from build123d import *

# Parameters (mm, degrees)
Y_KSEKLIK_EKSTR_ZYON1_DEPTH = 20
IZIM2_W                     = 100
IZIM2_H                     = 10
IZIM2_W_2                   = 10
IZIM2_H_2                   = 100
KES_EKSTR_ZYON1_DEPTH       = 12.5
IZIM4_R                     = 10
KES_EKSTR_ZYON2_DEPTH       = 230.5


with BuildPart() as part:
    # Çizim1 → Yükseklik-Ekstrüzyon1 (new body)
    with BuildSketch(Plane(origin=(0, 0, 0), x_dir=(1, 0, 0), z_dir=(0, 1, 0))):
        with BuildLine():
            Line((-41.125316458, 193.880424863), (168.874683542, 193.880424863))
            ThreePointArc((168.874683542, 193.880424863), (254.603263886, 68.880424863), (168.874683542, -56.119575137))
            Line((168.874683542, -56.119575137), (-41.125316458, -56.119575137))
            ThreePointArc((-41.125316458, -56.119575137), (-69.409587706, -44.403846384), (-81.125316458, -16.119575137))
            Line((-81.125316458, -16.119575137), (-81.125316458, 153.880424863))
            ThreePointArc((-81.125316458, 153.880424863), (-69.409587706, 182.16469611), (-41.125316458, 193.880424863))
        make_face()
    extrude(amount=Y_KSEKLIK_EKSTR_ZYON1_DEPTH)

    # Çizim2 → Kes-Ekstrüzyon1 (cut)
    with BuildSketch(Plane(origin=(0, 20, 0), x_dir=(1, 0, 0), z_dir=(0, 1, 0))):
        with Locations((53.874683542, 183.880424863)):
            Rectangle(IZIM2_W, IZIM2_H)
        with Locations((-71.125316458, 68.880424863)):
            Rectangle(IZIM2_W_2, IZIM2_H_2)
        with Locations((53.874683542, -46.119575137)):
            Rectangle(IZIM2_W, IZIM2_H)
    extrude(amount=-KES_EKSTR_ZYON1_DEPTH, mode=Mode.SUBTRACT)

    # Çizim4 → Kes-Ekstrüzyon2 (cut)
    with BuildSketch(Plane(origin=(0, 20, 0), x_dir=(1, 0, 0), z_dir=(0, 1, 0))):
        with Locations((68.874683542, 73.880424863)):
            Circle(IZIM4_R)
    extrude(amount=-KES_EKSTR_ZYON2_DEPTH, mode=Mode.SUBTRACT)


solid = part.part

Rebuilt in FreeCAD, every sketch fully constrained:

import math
import FreeCAD as App
import Part
import Sketcher


def add_polygon(sketch, points):
    """Adds a closed chain of lines whose ends are joined by coincident constraints."""
    first, n = sketch.GeometryCount, len(points)
    for a, b in zip(points, points[1:] + points[:1]):
        sketch.addGeometry(Part.LineSegment(App.Vector(*a, 0), App.Vector(*b, 0)), False)
    for i in range(n):
        sketch.addConstraint(Sketcher.Constraint("Coincident", first + i, 2, first + (i + 1) % n, 1))

doc = App.newDocument("Part")
body = doc.addObject("PartDesign::Body", "Body")

sketch1 = body.newObject("Sketcher::SketchObject", "Sketch")
sketch1.AttachmentSupport = (doc.getObject("XZ_Plane"), [""])
sketch1.MapMode = "FlatFace"
sketch1.addGeometry([
    Part.LineSegment(App.Vector(168.874684, -193.880425, 0), App.Vector(-41.125316, -193.880425, 0)),
    Part.ArcOfCircle(Part.Circle(App.Vector(-41.125316, -153.880425, 0), App.Vector(0, 0, 1), 40), math.radians(180), math.radians(270)),
    Part.LineSegment(App.Vector(-81.125316, -153.880425, 0), App.Vector(-81.125316, 16.119575, 0)),
    Part.ArcOfCircle(Part.Circle(App.Vector(-41.125316, 16.119575, 0), App.Vector(0, 0, 1), 40), math.radians(90), math.radians(180)),
    Part.LineSegment(App.Vector(-41.125316, 56.119575, 0), App.Vector(168.874684, 56.119575, 0)),
    Part.ArcOfCircle(Part.Circle(App.Vector(120.608338, -68.880425, 0), App.Vector(0, 0, 1), 133.994926), math.radians(-68.886891), math.radians(68.886891)),
], False)
sketch1.addConstraint([
    Sketcher.Constraint("Tangent", 0, 2, 1, 2),
    Sketcher.Constraint("Tangent", 1, 1, 2, 1),
    Sketcher.Constraint("Tangent", 2, 2, 3, 2),
    Sketcher.Constraint("Tangent", 3, 1, 4, 1),
    Sketcher.Constraint("Coincident", 4, 2, 5, 2),
    Sketcher.Constraint("Coincident", 5, 1, 0, 1),
    Sketcher.Constraint("Horizontal", 0),
    Sketcher.Constraint("Vertical", 2),
    Sketcher.Constraint("Horizontal", 4),
    Sketcher.Constraint("Equal", 1, 3),
    Sketcher.Constraint("Vertical", 4, 2, 5, 1),
    Sketcher.Constraint("Radius", 1, 40.0),
    Sketcher.Constraint("DistanceX", 0, 2, 0, 1, 210.0),
    Sketcher.Constraint("DistanceY", 2, 1, 2, 2, 170.0),
    Sketcher.Constraint("Radius", 5, 133.994926),
    Sketcher.Constraint("DistanceX", -1, 1, 5, 3, 120.608338),
    Sketcher.Constraint("DistanceY", 1, 3, -1, 1, 153.880425),
])
pad1 = body.newObject("PartDesign::Pad", "Pad")
pad1.Profile = sketch1
pad1.Length = 20
pad1.Reversed = True

sketch2 = body.newObject("Sketcher::SketchObject", "Sketch001")
sketch2.AttachmentSupport = (doc.getObject("XZ_Plane"), [""])
sketch2.MapMode = "FlatFace"
sketch2.AttachmentOffset = App.Placement(App.Vector(0, 0, -20), App.Rotation())
add_polygon(sketch2, [(3.874684, -188.880425), (3.874684, -178.880425), (103.874684, -178.880425), (103.874684, -188.880425)])
add_polygon(sketch2, [(-76.125316, -118.880425), (-76.125316, -18.880425), (-66.125316, -18.880425), (-66.125316, -118.880425)])
add_polygon(sketch2, [(3.874684, 41.119575), (3.874684, 51.119575), (103.874684, 51.119575), (103.874684, 41.119575)])
sketch2.addConstraint([
    Sketcher.Constraint("Vertical", 0),
    Sketcher.Constraint("Horizontal", 1),
    Sketcher.Constraint("Vertical", 2),
    Sketcher.Constraint("Horizontal", 3),
    Sketcher.Constraint("Vertical", 4),
    Sketcher.Constraint("Horizontal", 5),
    Sketcher.Constraint("Vertical", 6),
    Sketcher.Constraint("Horizontal", 7),
    Sketcher.Constraint("Vertical", 8),
    Sketcher.Constraint("Horizontal", 9),
    Sketcher.Constraint("Vertical", 10),
    Sketcher.Constraint("Horizontal", 11),
    Sketcher.Constraint("Vertical", 3, 2, 8, 2),
    Sketcher.Constraint("Vertical", 2, 2, 9, 2),
    Sketcher.Constraint("Equal", 7, 0),
    Sketcher.Constraint("Equal", 11, 4),
    Sketcher.Constraint("Equal", 2, 8),
    Sketcher.Constraint("DistanceX", 1, 1, 1, 2, 100.0),
    Sketcher.Constraint("DistanceX", 5, 1, 5, 2, 10.0),
    Sketcher.Constraint("DistanceX", 4, 2, 0, 2, 80.0),
    Sketcher.Constraint("DistanceY", 0, 2, 4, 2, 160.0),
    Sketcher.Constraint("DistanceY", 5, 2, 8, 2, 70.0),
    Sketcher.Constraint("DistanceX", -1, 1, 0, 2, 3.874684),
    Sketcher.Constraint("DistanceY", 0, 2, -1, 1, 178.880425),
])
pocket1 = body.newObject("PartDesign::Pocket", "Pocket")
pocket1.Profile = sketch2
pocket1.Length = 12.5
pocket1.Reversed = True

sketch3 = body.newObject("Sketcher::SketchObject", "Sketch002")
sketch3.AttachmentSupport = (doc.getObject("XZ_Plane"), [""])
sketch3.MapMode = "FlatFace"
sketch3.AttachmentOffset = App.Placement(App.Vector(0, 0, -20), App.Rotation())
sketch3.addGeometry(Part.Circle(App.Vector(68.874684, -73.880425, 0), App.Vector(0, 0, 1), 10), False)
sketch3.addConstraint([
    Sketcher.Constraint("Diameter", 0, 20.0),
    Sketcher.Constraint("DistanceX", -1, 1, 0, 3, 68.874684),
    Sketcher.Constraint("DistanceY", 0, 3, -1, 1, 73.880425),
])
pocket2 = body.newObject("PartDesign::Pocket", "Pocket001")
pocket2.Profile = sketch3
pocket2.Length = 230.5
pocket2.Reversed = True

doc.recompute()
